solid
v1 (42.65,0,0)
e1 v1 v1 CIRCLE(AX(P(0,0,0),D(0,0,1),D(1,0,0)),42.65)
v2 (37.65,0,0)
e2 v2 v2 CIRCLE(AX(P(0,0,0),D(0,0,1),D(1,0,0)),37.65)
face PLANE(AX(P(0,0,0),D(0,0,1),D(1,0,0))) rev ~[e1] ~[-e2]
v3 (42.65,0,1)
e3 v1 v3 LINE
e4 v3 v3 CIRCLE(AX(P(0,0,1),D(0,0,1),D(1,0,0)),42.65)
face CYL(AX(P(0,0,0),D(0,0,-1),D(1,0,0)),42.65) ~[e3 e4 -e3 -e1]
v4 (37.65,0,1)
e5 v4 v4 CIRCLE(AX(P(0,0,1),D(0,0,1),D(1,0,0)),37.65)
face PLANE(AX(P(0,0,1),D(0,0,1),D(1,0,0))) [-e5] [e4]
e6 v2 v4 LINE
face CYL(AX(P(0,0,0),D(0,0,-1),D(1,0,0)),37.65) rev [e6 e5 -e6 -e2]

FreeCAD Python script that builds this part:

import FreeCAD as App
import Part
import Sketcher

V = App.Vector
Q = App.Units.Quantity

doc = App.newDocument("Part")
body = doc.addObject("PartDesign::Body", "Body")

sketch1 = body.newObject("Sketcher::SketchObject", "Sketch")
sketch1.AttachmentSupport = (doc.getObject("XY_Plane"), [""])
sketch1.MapMode = "FlatFace"
sketch1.addGeometry([
    Part.Circle(V(0, 0, 0), V(0, 0, 1), 43),
    Part.Circle(V(0, 0, 0), V(0, 0, 1), 38),
], False)
sketch1.addConstraint([
    Sketcher.Constraint("Coincident", 0, 3, -1, 1),
    Sketcher.Constraint("Coincident", 1, 3, -1, 1),
    Sketcher.Constraint("Diameter", 1, Q("75.3 mm")),
    Sketcher.Constraint("Diameter", 0, Q("85.3 mm")),
])
pad1 = body.newObject("PartDesign::Pad", "Pad")
pad1.Profile = sketch1
pad1.Length = 1

doc.recompute()
